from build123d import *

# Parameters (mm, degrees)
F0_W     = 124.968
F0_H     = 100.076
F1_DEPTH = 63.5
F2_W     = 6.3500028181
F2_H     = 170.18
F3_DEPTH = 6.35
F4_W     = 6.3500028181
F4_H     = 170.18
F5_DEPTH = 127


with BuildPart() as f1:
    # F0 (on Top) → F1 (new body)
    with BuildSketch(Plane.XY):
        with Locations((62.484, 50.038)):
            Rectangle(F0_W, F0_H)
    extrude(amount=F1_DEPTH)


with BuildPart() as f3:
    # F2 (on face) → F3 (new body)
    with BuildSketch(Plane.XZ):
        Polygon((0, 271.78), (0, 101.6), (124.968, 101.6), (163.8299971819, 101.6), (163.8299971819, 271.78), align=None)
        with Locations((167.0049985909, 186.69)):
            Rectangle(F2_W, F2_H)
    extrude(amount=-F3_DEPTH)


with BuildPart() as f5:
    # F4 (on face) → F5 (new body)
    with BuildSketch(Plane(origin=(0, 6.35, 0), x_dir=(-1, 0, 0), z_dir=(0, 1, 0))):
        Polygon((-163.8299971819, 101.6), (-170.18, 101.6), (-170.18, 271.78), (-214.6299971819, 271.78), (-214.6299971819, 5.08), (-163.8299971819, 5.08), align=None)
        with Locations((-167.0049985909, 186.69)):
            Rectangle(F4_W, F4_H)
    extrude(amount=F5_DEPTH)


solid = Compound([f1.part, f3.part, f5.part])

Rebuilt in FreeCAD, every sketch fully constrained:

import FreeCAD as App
import Part
import Sketcher
Q = App.Units.Quantity


def add_polygon(sketch, points):
    """Adds a closed chain of lines whose ends are joined by coincident constraints."""
    first, n = sketch.GeometryCount, len(points)
    for a, b in zip(points, points[1:] + points[:1]):
        sketch.addGeometry(Part.LineSegment(App.Vector(*a, 0), App.Vector(*b, 0)), False)
    for i in range(n):
        sketch.addConstraint(Sketcher.Constraint("Coincident", first + i, 2, first + (i + 1) % n, 1))

doc = App.newDocument("Part")
body = doc.addObject("PartDesign::Body", "Body")

sketch1 = body.newObject("Sketcher::SketchObject", "Sketch")
sketch1.AttachmentSupport = (doc.getObject("XY_Plane"), [""])
sketch1.MapMode = "FlatFace"
add_polygon(sketch1, [(0, 100), (0, 0), (125, 0), (125, 100)])
sketch1.addConstraint(Sketcher.Constraint("Vertical", 0))
sketch1.addConstraint(Sketcher.Constraint("Horizontal", 1))
sketch1.addConstraint(Sketcher.Constraint("Vertical", 2))
sketch1.addConstraint(Sketcher.Constraint("Horizontal", 3))
sketch1.addConstraint(Sketcher.Constraint("Coincident", 0, 2, -1, 1))
sketch1.addConstraint(Sketcher.Constraint("DistanceX", 1, 1, 1, 2, Q("4.92 in")))
sketch1.addConstraint(Sketcher.Constraint("DistanceY", 0, 2, 0, 1, Q("3.94 in")))
pad1 = body.newObject("PartDesign::Pad", "Pad")
pad1.Profile = sketch1
pad1.Length = Q("2.5 in")
body2 = doc.addObject("PartDesign::Body", "Body001")

sketch2 = body2.newObject("Sketcher::SketchObject", "Sketch001")
sketch2.AttachmentSupport = (doc.getObject("XZ_Plane001"), [""])
sketch2.MapMode = "FlatFace"
add_polygon(sketch2, [(0, 272), (0, 102), (170, 102), (170, 272)])
sketch2.addConstraint(Sketcher.Constraint("Vertical", 0))
sketch2.addConstraint(Sketcher.Constraint("Horizontal", 1))
sketch2.addConstraint(Sketcher.Constraint("Vertical", 2))
sketch2.addConstraint(Sketcher.Constraint("Horizontal", 3))
sketch2.addConstraint(Sketcher.Constraint("PointOnObject", 0, 2, -2))
sketch2.addConstraint(Sketcher.Constraint("Equal", 3, 0))
sketch2.addConstraint(Sketcher.Constraint("DistanceX", 1, 1, 1, 2, Q("6.7 in")))
sketch2.addConstraint(Sketcher.Constraint("DistanceY", -1, 1, 0, 2, Q("4 in")))
pad2 = body2.newObject("PartDesign::Pad", "Pad001")
pad2.Profile = sketch2
pad2.Length = Q("0.25 in")
pad2.Reversed = True
body3 = doc.addObject("PartDesign::Body", "Body002")

sketch3 = body3.newObject("Sketcher::SketchObject", "Sketch002")
sketch3.AttachmentSupport = (doc.getObject("XZ_Plane002"), [""])
sketch3.MapMode = "FlatFace"
sketch3.AttachmentOffset = App.Placement(App.Vector(0, 0, -0.25 * 25.4), App.Rotation())
add_polygon(sketch3, [(215, 272), (215, 5), (164, 5), (164, 272)])
sketch3.addConstraint(Sketcher.Constraint("Vertical", 0))
sketch3.addConstraint(Sketcher.Constraint("Horizontal", 1))
sketch3.addConstraint(Sketcher.Constraint("Vertical", 2))
sketch3.addConstraint(Sketcher.Constraint("Horizontal", 3))
sketch3.addConstraint(Sketcher.Constraint("DistanceX", 1, 2, 1, 1, Q("2 in")))
sketch3.addConstraint(Sketcher.Constraint("DistanceY", 0, 2, 0, 1, Q("10.5 in")))
sketch3.addConstraint(Sketcher.Constraint("DistanceY", -1, 1, 0, 2, Q("0.2 in")))
sketch3.addConstraint(Sketcher.Constraint("DistanceX", -1, 1, 0, 2, Q("8.4499999 in")))
pad3 = body3.newObject("PartDesign::Pad", "Pad002")
pad3.Profile = sketch3
pad3.Length = Q("5 in")
pad3.Reversed = True

doc.recompute()
